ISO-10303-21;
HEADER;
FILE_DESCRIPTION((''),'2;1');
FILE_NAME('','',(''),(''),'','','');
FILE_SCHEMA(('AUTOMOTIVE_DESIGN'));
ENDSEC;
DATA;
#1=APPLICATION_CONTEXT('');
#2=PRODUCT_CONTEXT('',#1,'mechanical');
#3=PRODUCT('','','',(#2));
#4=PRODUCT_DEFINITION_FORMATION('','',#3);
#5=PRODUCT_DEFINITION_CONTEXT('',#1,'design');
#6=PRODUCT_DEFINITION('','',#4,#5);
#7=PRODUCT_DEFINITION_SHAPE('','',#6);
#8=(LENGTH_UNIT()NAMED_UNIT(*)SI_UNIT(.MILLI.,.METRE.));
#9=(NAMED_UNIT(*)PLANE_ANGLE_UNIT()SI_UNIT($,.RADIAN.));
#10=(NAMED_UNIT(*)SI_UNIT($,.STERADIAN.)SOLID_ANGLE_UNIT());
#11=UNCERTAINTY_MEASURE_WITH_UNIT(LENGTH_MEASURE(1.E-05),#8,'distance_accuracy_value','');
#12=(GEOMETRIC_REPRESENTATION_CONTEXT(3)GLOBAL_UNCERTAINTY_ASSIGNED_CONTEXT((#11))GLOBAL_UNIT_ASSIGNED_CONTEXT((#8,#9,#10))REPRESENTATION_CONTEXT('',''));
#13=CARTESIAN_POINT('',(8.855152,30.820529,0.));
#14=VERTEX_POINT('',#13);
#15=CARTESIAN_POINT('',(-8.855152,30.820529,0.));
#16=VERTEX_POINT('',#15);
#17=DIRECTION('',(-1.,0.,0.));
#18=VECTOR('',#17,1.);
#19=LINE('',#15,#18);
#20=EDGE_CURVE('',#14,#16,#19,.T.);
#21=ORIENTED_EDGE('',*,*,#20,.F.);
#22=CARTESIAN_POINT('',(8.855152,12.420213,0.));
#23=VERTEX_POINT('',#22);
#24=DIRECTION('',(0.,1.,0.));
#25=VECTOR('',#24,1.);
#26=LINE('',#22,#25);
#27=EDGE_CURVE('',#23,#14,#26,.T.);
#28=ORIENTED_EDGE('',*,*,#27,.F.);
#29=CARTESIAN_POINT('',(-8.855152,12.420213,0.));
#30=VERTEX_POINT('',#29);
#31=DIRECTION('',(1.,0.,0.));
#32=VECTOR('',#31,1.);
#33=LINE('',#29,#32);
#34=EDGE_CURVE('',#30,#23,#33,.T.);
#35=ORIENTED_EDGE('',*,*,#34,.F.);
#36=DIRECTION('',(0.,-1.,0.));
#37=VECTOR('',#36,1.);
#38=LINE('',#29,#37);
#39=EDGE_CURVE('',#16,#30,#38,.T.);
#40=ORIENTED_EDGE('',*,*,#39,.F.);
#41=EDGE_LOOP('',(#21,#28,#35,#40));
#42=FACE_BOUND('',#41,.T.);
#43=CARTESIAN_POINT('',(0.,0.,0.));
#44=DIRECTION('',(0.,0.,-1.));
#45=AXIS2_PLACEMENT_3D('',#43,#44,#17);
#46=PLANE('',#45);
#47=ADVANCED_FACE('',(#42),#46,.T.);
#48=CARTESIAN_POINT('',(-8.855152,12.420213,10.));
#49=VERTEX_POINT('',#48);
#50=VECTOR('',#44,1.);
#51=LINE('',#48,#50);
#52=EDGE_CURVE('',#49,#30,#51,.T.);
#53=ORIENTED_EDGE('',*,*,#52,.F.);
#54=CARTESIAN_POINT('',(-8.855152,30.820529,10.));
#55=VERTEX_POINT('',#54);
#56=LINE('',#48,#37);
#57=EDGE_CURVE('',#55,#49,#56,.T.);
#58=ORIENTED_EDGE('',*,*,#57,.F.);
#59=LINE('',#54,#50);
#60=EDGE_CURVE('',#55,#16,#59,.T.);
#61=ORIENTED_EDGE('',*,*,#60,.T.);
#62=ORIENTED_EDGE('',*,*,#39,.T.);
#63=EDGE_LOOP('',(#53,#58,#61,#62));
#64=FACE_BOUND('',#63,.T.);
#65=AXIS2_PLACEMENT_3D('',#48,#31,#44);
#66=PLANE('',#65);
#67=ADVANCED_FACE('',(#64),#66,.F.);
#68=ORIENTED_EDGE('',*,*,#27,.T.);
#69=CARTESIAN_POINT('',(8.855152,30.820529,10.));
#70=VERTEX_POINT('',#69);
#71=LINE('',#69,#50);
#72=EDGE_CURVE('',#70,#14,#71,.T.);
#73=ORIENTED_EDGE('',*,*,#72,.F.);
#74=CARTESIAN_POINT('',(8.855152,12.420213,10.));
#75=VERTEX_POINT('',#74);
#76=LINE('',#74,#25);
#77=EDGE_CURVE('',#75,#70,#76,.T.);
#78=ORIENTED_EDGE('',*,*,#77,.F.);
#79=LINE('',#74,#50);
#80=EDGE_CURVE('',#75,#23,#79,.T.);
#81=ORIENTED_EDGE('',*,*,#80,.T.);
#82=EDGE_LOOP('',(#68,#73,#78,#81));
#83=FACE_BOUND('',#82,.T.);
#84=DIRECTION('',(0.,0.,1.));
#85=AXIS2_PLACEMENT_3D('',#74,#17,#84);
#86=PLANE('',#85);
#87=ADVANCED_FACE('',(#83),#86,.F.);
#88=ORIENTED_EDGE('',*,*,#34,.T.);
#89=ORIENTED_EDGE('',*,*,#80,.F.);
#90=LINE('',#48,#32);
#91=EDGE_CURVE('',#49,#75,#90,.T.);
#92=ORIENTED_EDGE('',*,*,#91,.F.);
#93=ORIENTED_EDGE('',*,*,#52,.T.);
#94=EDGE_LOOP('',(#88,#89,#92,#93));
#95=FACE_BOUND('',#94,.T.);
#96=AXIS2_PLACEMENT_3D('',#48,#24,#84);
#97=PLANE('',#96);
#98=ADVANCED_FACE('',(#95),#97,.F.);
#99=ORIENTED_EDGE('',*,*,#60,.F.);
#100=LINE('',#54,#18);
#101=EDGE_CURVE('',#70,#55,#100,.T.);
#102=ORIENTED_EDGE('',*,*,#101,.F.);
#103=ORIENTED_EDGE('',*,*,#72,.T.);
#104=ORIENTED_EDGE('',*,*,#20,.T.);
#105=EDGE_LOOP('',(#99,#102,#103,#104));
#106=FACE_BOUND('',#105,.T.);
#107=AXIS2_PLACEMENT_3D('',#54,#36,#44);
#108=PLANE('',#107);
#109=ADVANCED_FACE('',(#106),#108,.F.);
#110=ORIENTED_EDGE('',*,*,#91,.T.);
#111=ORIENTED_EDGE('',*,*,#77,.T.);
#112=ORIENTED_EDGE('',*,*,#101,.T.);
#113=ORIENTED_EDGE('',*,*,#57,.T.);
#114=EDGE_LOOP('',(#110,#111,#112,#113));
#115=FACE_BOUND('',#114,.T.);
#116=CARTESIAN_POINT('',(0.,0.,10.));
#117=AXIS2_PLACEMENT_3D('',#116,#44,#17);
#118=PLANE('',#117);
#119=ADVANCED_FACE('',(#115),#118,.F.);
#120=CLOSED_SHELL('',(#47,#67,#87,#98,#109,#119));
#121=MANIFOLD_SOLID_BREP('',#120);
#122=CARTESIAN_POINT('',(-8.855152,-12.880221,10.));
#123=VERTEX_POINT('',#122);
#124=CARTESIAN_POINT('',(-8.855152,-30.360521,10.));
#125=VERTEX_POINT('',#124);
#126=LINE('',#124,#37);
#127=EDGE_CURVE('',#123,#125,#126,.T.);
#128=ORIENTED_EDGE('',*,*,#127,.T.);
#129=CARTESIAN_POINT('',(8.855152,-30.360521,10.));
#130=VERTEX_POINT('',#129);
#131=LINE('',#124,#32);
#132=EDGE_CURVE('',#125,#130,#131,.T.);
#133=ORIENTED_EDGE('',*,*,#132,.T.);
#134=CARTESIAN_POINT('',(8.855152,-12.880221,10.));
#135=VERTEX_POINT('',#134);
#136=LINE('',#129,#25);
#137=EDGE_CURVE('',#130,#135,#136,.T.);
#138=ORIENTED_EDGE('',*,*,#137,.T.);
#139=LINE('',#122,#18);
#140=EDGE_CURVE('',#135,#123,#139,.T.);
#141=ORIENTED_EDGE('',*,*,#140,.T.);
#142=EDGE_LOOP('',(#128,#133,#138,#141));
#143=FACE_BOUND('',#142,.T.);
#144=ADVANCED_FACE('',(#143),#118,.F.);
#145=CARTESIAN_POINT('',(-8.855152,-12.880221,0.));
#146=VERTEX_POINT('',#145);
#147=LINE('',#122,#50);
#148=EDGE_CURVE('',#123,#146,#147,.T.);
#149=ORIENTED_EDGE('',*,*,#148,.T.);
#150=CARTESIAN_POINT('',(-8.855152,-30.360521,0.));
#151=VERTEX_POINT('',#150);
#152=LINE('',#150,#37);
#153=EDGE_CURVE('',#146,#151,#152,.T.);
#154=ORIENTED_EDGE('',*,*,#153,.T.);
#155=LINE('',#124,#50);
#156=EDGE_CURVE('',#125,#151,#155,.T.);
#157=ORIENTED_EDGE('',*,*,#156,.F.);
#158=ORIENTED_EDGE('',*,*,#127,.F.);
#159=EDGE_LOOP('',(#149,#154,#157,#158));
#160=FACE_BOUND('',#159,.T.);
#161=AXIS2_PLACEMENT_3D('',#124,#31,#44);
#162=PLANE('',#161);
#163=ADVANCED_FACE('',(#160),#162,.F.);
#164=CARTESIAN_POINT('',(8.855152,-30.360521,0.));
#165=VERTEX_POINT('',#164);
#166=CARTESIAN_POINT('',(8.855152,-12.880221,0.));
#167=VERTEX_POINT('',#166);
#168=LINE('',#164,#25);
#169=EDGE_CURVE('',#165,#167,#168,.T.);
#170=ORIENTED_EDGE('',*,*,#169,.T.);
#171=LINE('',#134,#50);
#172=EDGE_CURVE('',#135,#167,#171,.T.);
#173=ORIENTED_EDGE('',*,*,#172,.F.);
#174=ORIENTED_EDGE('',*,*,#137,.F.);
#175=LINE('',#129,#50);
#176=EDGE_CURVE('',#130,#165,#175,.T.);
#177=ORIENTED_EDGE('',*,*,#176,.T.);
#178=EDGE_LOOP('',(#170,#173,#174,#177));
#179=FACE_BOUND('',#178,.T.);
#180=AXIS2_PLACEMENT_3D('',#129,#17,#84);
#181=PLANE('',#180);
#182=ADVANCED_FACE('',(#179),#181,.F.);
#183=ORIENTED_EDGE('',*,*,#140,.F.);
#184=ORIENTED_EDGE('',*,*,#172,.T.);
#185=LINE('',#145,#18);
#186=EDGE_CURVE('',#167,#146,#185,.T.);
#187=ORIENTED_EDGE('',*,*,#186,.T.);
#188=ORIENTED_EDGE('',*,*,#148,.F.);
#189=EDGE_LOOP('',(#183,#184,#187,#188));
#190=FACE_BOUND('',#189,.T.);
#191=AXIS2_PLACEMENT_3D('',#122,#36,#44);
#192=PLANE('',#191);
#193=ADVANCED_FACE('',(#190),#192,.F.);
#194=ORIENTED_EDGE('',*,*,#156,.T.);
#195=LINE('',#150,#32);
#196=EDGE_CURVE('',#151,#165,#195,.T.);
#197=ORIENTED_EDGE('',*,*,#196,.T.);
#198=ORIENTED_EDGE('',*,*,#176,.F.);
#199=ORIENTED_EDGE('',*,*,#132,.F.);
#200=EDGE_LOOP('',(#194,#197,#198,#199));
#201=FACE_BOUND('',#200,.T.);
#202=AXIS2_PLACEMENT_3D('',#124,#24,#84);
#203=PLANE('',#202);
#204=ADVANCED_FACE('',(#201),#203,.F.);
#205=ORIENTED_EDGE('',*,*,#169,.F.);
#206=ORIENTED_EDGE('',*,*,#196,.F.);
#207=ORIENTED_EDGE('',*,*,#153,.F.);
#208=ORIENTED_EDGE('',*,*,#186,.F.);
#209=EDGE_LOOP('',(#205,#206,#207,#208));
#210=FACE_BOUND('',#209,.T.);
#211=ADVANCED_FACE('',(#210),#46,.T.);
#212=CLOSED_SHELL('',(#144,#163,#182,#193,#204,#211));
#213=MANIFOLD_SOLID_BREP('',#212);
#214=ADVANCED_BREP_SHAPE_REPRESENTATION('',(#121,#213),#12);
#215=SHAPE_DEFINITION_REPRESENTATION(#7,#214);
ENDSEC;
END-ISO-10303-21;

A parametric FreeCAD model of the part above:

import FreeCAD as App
import Part
import Sketcher


def add_polygon(sketch, points):
    """Adds a closed chain of lines whose ends are joined by coincident constraints."""
    first, n = sketch.GeometryCount, len(points)
    for a, b in zip(points, points[1:] + points[:1]):
        sketch.addGeometry(Part.LineSegment(App.Vector(*a, 0), App.Vector(*b, 0)), False)
    for i in range(n):
        sketch.addConstraint(Sketcher.Constraint("Coincident", first + i, 2, first + (i + 1) % n, 1))

doc = App.newDocument("Part")
body = doc.addObject("PartDesign::Body", "Body")

sketch1 = doc.addObject("Sketcher::SketchObject", "Sketch")
body.addObject(sketch1)
sketch1.AttachmentSupport = (doc.XY_Plane, [""])
sketch1.MapMode = "FlatFace"
add_polygon(sketch1, [(-9, 31), (-9, 12), (9, 12), (9, 31)])
sketch1.addConstraint(Sketcher.Constraint("Vertical", 0))
sketch1.addConstraint(Sketcher.Constraint("Horizontal", 1))
sketch1.addConstraint(Sketcher.Constraint("Vertical", 2))
sketch1.addConstraint(Sketcher.Constraint("Horizontal", 3))
sketch1.addConstraint(Sketcher.Constraint("DistanceX", 1, 1, 1, 2, 17.710304))
sketch1.addConstraint(Sketcher.Constraint("DistanceY", 0, 2, 0, 1, 18.400316))
sketch1.addConstraint(Sketcher.Constraint("DistanceX", 0, 2, -1, 1, 8.855152))
sketch1.addConstraint(Sketcher.Constraint("DistanceY", -1, 1, 2, 2, 30.820529))
pad1 = doc.addObject("PartDesign::Pad", "Pad")
body.addObject(pad1)
pad1.Profile = sketch1
pad1.Length = 10
body2 = doc.addObject("PartDesign::Body", "Body001")

sketch2 = doc.addObject("Sketcher::SketchObject", "Sketch001")
body2.addObject(sketch2)
sketch2.AttachmentSupport = (doc.getObject("XY_Plane001"), [""])
sketch2.MapMode = "FlatFace"
add_polygon(sketch2, [(-9, -13), (-9, -30), (9, -30), (9, -13)])
sketch2.addConstraint(Sketcher.Constraint("Vertical", 0))
sketch2.addConstraint(Sketcher.Constraint("Horizontal", 1))
sketch2.addConstraint(Sketcher.Constraint("Vertical", 2))
sketch2.addConstraint(Sketcher.Constraint("Horizontal", 3))
sketch2.addConstraint(Sketcher.Constraint("DistanceY", 0, 2, 0, 1, 17.4803))
sketch2.addConstraint(Sketcher.Constraint("DistanceX", 1, 1, 1, 2, 17.710304))
sketch2.addConstraint(Sketcher.Constraint("DistanceX", 0, 2, -1, 1, 8.855152))
sketch2.addConstraint(Sketcher.Constraint("DistanceY", 0, 2, -1, 1, 30.360521))
pad2 = doc.addObject("PartDesign::Pad", "Pad001")
body2.addObject(pad2)
pad2.Profile = sketch2
pad2.Length = 10

doc.recompute()
